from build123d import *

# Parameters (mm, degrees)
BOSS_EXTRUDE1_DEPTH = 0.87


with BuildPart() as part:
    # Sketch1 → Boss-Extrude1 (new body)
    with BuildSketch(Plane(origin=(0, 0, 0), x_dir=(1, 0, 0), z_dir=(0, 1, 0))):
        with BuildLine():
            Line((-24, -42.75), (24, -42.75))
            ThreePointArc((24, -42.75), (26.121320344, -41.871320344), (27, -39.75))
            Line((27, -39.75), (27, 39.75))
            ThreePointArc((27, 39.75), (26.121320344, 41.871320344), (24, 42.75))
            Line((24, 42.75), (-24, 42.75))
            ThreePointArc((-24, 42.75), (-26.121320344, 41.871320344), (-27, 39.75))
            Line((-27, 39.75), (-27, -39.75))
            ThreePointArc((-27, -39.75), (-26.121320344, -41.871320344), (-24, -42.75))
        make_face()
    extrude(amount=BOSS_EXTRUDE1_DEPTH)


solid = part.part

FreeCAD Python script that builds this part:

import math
import FreeCAD as App
import Part
import Sketcher

V = App.Vector
Q = App.Units.Quantity

doc = App.newDocument("Part")
body = doc.addObject("PartDesign::Body", "Body")

# Sketch on XZ plane
sketch1 = body.newObject("Sketcher::SketchObject", "Sketch")
sketch1.AttachmentSupport = (doc.getObject("XZ_Plane"), [""])
sketch1.MapMode = "FlatFace"
sketch1.addGeometry(Part.LineSegment(V(-24, 42.75, 0), V(24, 42.75, 0)), False)
sketch1.addGeometry(Part.ArcOfCircle(Part.Circle(V(24, 39.75, 0), V(0, 0, 1), 3), math.radians(0), math.radians(90)), False)
sketch1.addGeometry(Part.LineSegment(V(27, 39.75, 0), V(27, -39.75, 0)), False)
sketch1.addGeometry(Part.ArcOfCircle(Part.Circle(V(24, -39.75, 0), V(0, 0, 1), 3), math.radians(-90), math.radians(0)), False)
sketch1.addGeometry(Part.LineSegment(V(24, -42.75, 0), V(-24, -42.75, 0)), False)
sketch1.addGeometry(Part.ArcOfCircle(Part.Circle(V(-24, -39.75, 0), V(0, 0, 1), 3), math.radians(180), math.radians(270)), False)
sketch1.addGeometry(Part.LineSegment(V(-27, -39.75, 0), V(-27, 39.75, 0)), False)
sketch1.addGeometry(Part.ArcOfCircle(Part.Circle(V(-24, 39.75, 0), V(0, 0, 1), 3), math.radians(90), math.radians(180)), False)
sketch1.addConstraint(Sketcher.Constraint("Tangent", 0, 2, 1, 2))
sketch1.addConstraint(Sketcher.Constraint("Tangent", 1, 1, 2, 1))
sketch1.addConstraint(Sketcher.Constraint("Tangent", 2, 2, 3, 2))
sketch1.addConstraint(Sketcher.Constraint("Tangent", 3, 1, 4, 1))
sketch1.addConstraint(Sketcher.Constraint("Tangent", 4, 2, 5, 2))
sketch1.addConstraint(Sketcher.Constraint("Tangent", 5, 1, 6, 1))
sketch1.addConstraint(Sketcher.Constraint("Tangent", 6, 2, 7, 2))
sketch1.addConstraint(Sketcher.Constraint("Tangent", 7, 1, 0, 1))
sketch1.addConstraint(Sketcher.Constraint("Horizontal", 0))
sketch1.addConstraint(Sketcher.Constraint("Vertical", 2))
sketch1.addConstraint(Sketcher.Constraint("Horizontal", 4))
sketch1.addConstraint(Sketcher.Constraint("Vertical", 6))
sketch1.addConstraint(Sketcher.Constraint("Equal", 1, 3))
sketch1.addConstraint(Sketcher.Constraint("Equal", 3, 5))
sketch1.addConstraint(Sketcher.Constraint("Equal", 5, 7))
sketch1.addConstraint(Sketcher.Constraint("Symmetric", 1, 3, 5, 3, -1, 1))
sketch1.addConstraint(Sketcher.Constraint("Radius", 1, Q("3 mm")))
sketch1.addConstraint(Sketcher.Constraint("DistanceX", 0, 1, 0, 2, Q("48 mm")))
sketch1.addConstraint(Sketcher.Constraint("DistanceY", 2, 2, 2, 1, Q("79.5 mm")))
pad1 = body.newObject("PartDesign::Pad", "Pad")
pad1.Profile = sketch1
pad1.Length = 0.87
pad1.Reversed = True

doc.recompute()
